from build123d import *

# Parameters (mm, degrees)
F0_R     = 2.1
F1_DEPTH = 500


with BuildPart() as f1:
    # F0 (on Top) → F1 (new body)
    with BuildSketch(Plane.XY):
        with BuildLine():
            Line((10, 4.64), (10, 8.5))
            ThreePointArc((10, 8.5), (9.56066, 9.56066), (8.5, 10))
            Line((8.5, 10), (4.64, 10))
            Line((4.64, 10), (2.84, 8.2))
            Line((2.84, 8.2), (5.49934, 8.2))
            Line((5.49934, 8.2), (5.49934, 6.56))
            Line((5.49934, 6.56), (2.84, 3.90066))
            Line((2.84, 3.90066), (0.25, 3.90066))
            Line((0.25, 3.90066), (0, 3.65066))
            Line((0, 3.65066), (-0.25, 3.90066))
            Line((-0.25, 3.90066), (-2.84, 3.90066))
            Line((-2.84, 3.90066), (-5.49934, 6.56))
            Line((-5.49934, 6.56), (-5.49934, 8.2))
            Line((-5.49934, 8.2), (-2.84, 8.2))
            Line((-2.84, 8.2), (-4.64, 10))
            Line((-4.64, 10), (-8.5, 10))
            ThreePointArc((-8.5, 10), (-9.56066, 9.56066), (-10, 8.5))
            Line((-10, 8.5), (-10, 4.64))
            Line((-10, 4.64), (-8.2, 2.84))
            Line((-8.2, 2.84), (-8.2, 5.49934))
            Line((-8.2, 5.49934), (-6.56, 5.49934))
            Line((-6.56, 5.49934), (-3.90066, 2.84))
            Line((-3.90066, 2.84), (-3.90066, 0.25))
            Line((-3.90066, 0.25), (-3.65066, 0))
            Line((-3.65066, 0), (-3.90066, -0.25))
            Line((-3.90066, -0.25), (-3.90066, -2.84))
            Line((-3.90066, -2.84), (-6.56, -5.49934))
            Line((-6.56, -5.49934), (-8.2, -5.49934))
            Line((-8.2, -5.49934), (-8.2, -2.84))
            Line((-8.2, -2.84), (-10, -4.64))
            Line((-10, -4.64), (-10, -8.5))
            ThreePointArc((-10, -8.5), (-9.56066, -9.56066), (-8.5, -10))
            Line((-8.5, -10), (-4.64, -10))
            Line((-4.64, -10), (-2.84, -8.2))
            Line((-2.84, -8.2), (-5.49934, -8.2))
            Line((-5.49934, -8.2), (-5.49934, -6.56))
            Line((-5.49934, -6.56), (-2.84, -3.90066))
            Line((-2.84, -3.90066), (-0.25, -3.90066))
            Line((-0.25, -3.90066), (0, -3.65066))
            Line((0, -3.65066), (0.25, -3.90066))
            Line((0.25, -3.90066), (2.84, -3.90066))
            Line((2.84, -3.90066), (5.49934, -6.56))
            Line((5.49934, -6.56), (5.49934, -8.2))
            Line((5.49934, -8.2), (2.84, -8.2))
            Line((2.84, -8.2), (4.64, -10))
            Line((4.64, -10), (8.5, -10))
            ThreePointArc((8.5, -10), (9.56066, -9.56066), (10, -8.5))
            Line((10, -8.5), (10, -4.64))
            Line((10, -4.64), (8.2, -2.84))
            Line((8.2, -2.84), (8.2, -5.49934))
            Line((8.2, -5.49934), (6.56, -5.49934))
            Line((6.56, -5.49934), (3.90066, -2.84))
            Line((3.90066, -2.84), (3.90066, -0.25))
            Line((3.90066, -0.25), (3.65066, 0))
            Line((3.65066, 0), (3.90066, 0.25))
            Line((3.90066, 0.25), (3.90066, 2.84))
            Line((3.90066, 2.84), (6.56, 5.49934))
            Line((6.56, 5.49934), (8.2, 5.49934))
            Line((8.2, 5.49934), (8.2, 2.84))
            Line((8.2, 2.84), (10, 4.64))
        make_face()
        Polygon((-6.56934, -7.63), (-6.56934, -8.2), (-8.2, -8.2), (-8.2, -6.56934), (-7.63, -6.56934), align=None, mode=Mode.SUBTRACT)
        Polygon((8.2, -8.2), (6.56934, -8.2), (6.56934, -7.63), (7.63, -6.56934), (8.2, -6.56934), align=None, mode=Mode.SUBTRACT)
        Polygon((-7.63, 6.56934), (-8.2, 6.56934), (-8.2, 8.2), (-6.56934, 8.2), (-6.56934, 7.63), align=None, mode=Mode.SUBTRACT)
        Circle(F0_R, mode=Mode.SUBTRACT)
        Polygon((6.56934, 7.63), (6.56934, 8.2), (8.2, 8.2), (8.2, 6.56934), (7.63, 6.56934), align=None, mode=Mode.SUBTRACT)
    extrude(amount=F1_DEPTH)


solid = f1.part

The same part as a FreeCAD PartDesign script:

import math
import FreeCAD as App
import Part
import Sketcher
from FreeCAD import Vector

doc = App.newDocument("Part")
body = doc.addObject("PartDesign::Body", "Body")

# Sketch on XY plane
sketch1 = body.newObject("Sketcher::SketchObject", "Sketch")
sketch1.AttachmentSupport = (doc.getObject("XY_Plane"), [""])
sketch1.MapMode = "FlatFace"
sketch1.addGeometry(Part.LineSegment(Vector(10, 4.64, 0), Vector(10, 8.5, 0)), False)
sketch1.addGeometry(Part.ArcOfCircle(Part.Circle(Vector(8.5, 8.5, 0), Vector(0, 0, 1), 1.5), math.radians(0), math.radians(90)), False)
sketch1.addGeometry(Part.LineSegment(Vector(8.5, 10, 0), Vector(4.64, 10, 0)), False)
sketch1.addGeometry(Part.LineSegment(Vector(4.64, 10, 0), Vector(2.84, 8.2, 0)), False)
sketch1.addGeometry(Part.LineSegment(Vector(2.84, 8.2, 0), Vector(5.5, 8.2, 0)), False)
sketch1.addGeometry(Part.LineSegment(Vector(5.5, 8.2, 0), Vector(5.5, 6.56, 0)), False)
sketch1.addGeometry(Part.LineSegment(Vector(5.5, 6.56, 0), Vector(2.84, 3.9, 0)), False)
sketch1.addGeometry(Part.LineSegment(Vector(2.84, 3.9, 0), Vector(0.25, 3.9, 0)), False)
sketch1.addGeometry(Part.LineSegment(Vector(0.25, 3.9, 0), Vector(0, 3.65, 0)), False)
sketch1.addGeometry(Part.LineSegment(Vector(0, 3.65, 0), Vector(-0.25, 3.9, 0)), False)
sketch1.addGeometry(Part.LineSegment(Vector(-0.25, 3.9, 0), Vector(-2.84, 3.9, 0)), False)
sketch1.addGeometry(Part.LineSegment(Vector(-2.84, 3.9, 0), Vector(-5.5, 6.56, 0)), False)
sketch1.addGeometry(Part.LineSegment(Vector(-5.5, 6.56, 0), Vector(-5.5, 8.2, 0)), False)
sketch1.addGeometry(Part.LineSegment(Vector(-5.5, 8.2, 0), Vector(-2.84, 8.2, 0)), False)
sketch1.addGeometry(Part.LineSegment(Vector(-2.84, 8.2, 0), Vector(-4.64, 10, 0)), False)
sketch1.addGeometry(Part.LineSegment(Vector(-4.64, 10, 0), Vector(-8.5, 10, 0)), False)
sketch1.addGeometry(Part.ArcOfCircle(Part.Circle(Vector(-8.5, 8.5, 0), Vector(0, 0, 1), 1.5), math.radians(90), math.radians(180)), False)
sketch1.addGeometry(Part.LineSegment(Vector(-10, 8.5, 0), Vector(-10, 4.64, 0)), False)
sketch1.addGeometry(Part.LineSegment(Vector(-10, 4.64, 0), Vector(-8.2, 2.84, 0)), False)
sketch1.addGeometry(Part.LineSegment(Vector(-8.2, 2.84, 0), Vector(-8.2, 5.5, 0)), False)
sketch1.addGeometry(Part.LineSegment(Vector(-8.2, 5.5, 0), Vector(-6.56, 5.5, 0)), False)
sketch1.addGeometry(Part.LineSegment(Vector(-6.56, 5.5, 0), Vector(-3.9, 2.84, 0)), False)
sketch1.addGeometry(Part.LineSegment(Vector(-3.9, 2.84, 0), Vector(-3.9, 0.25, 0)), False)
sketch1.addGeometry(Part.LineSegment(Vector(-3.9, 0.25, 0), Vector(-3.65, 0, 0)), False)
sketch1.addGeometry(Part.LineSegment(Vector(-3.65, 0, 0), Vector(-3.9, -0.25, 0)), False)
sketch1.addGeometry(Part.LineSegment(Vector(-3.9, -0.25, 0), Vector(-3.9, -2.84, 0)), False)
sketch1.addGeometry(Part.LineSegment(Vector(-3.9, -2.84, 0), Vector(-6.56, -5.5, 0)), False)
sketch1.addGeometry(Part.LineSegment(Vector(-6.56, -5.5, 0), Vector(-8.2, -5.5, 0)), False)
sketch1.addGeometry(Part.LineSegment(Vector(-8.2, -5.5, 0), Vector(-8.2, -2.84, 0)), False)
sketch1.addGeometry(Part.LineSegment(Vector(-8.2, -2.84, 0), Vector(-10, -4.64, 0)), False)
sketch1.addGeometry(Part.LineSegment(Vector(-10, -4.64, 0), Vector(-10, -8.5, 0)), False)
sketch1.addGeometry(Part.ArcOfCircle(Part.Circle(Vector(-8.5, -8.5, 0), Vector(0, 0, 1), 1.5), math.radians(-180), math.radians(-90)), False)
sketch1.addGeometry(Part.LineSegment(Vector(-8.5, -10, 0), Vector(-4.64, -10, 0)), False)
sketch1.addGeometry(Part.LineSegment(Vector(-4.64, -10, 0), Vector(-2.84, -8.2, 0)), False)
sketch1.addGeometry(Part.LineSegment(Vector(-2.84, -8.2, 0), Vector(-5.5, -8.2, 0)), False)
sketch1.addGeometry(Part.LineSegment(Vector(-5.5, -8.2, 0), Vector(-5.5, -6.56, 0)), False)
sketch1.addGeometry(Part.LineSegment(Vector(-5.5, -6.56, 0), Vector(-2.84, -3.9, 0)), False)
sketch1.addGeometry(Part.LineSegment(Vector(-2.84, -3.9, 0), Vector(-0.25, -3.9, 0)), False)
sketch1.addGeometry(Part.LineSegment(Vector(-0.25, -3.9, 0), Vector(0, -3.65, 0)), False)
sketch1.addGeometry(Part.LineSegment(Vector(0, -3.65, 0), Vector(0.25, -3.9, 0)), False)
sketch1.addGeometry(Part.LineSegment(Vector(0.25, -3.9, 0), Vector(2.84, -3.9, 0)), False)
sketch1.addGeometry(Part.LineSegment(Vector(2.84, -3.9, 0), Vector(5.5, -6.56, 0)), False)
sketch1.addGeometry(Part.LineSegment(Vector(5.5, -6.56, 0), Vector(5.5, -8.2, 0)), False)
sketch1.addGeometry(Part.LineSegment(Vector(5.5, -8.2, 0), Vector(2.84, -8.2, 0)), False)
sketch1.addGeometry(Part.LineSegment(Vector(2.84, -8.2, 0), Vector(4.64, -10, 0)), False)
sketch1.addGeometry(Part.LineSegment(Vector(4.64, -10, 0), Vector(8.5, -10, 0)), False)
sketch1.addGeometry(Part.ArcOfCircle(Part.Circle(Vector(8.5, -8.5, 0), Vector(0, 0, 1), 1.5), math.radians(-90), math.radians(0)), False)
sketch1.addGeometry(Part.LineSegment(Vector(10, -8.5, 0), Vector(10, -4.64, 0)), False)
sketch1.addGeometry(Part.LineSegment(Vector(10, -4.64, 0), Vector(8.2, -2.84, 0)), False)
sketch1.addGeometry(Part.LineSegment(Vector(8.2, -2.84, 0), Vector(8.2, -5.5, 0)), False)
sketch1.addGeometry(Part.LineSegment(Vector(8.2, -5.5, 0), Vector(6.56, -5.5, 0)), False)
sketch1.addGeometry(Part.LineSegment(Vector(6.56, -5.5, 0), Vector(3.9, -2.84, 0)), False)
sketch1.addGeometry(Part.LineSegment(Vector(3.9, -2.84, 0), Vector(3.9, -0.25, 0)), False)
sketch1.addGeometry(Part.LineSegment(Vector(3.9, -0.25, 0), Vector(3.65, 0, 0)), False)
sketch1.addGeometry(Part.LineSegment(Vector(3.65, 0, 0), Vector(3.9, 0.25, 0)), False)
sketch1.addGeometry(Part.LineSegment(Vector(3.9, 0.25, 0), Vector(3.9, 2.84, 0)), False)
sketch1.addGeometry(Part.LineSegment(Vector(3.9, 2.84, 0), Vector(6.56, 5.5, 0)), False)
sketch1.addGeometry(Part.LineSegment(Vector(6.56, 5.5, 0), Vector(8.2, 5.5, 0)), False)
sketch1.addGeometry(Part.LineSegment(Vector(8.2, 5.5, 0), Vector(8.2, 2.84, 0)), False)
sketch1.addGeometry(Part.LineSegment(Vector(8.2, 2.84, 0), Vector(10, 4.64, 0)), False)
sketch1.addGeometry(Part.LineSegment(Vector(-7.63, -6.57, 0), Vector(-6.57, -7.63, 0)), False)
sketch1.addGeometry(Part.LineSegment(Vector(-6.57, -7.63, 0), Vector(-6.57, -8.2, 0)), False)
sketch1.addGeometry(Part.LineSegment(Vector(-6.57, -8.2, 0), Vector(-8.2, -8.2, 0)), False)
sketch1.addGeometry(Part.LineSegment(Vector(-8.2, -8.2, 0), Vector(-8.2, -6.57, 0)), False)
sketch1.addGeometry(Part.LineSegment(Vector(-8.2, -6.57, 0), Vector(-7.63, -6.57, 0)), False)
sketch1.addGeometry(Part.LineSegment(Vector(8.2, -6.57, 0), Vector(8.2, -8.2, 0)), False)
sketch1.addGeometry(Part.LineSegment(Vector(8.2, -8.2, 0), Vector(6.57, -8.2, 0)), False)
sketch1.addGeometry(Part.LineSegment(Vector(6.57, -8.2, 0), Vector(6.57, -7.63, 0)), False)
sketch1.addGeometry(Part.LineSegment(Vector(6.57, -7.63, 0), Vector(7.63, -6.57, 0)), False)
sketch1.addGeometry(Part.LineSegment(Vector(7.63, -6.57, 0), Vector(8.2, -6.57, 0)), False)
sketch1.addGeometry(Part.LineSegment(Vector(-6.57, 7.63, 0), Vector(-7.63, 6.57, 0)), False)
sketch1.addGeometry(Part.LineSegment(Vector(-7.63, 6.57, 0), Vector(-8.2, 6.57, 0)), False)
sketch1.addGeometry(Part.LineSegment(Vector(-8.2, 6.57, 0), Vector(-8.2, 8.2, 0)), False)
sketch1.addGeometry(Part.LineSegment(Vector(-8.2, 8.2, 0), Vector(-6.57, 8.2, 0)), False)
sketch1.addGeometry(Part.LineSegment(Vector(-6.57, 8.2, 0), Vector(-6.57, 7.63, 0)), False)
sketch1.addGeometry(Part.Circle(Vector(0, 0, 0), Vector(0, 0, 1), 2.1), False)
sketch1.addGeometry(Part.LineSegment(Vector(7.63, 6.57, 0), Vector(6.57, 7.63, 0)), False)
sketch1.addGeometry(Part.LineSegment(Vector(6.57, 7.63, 0), Vector(6.57, 8.2, 0)), False)
sketch1.addGeometry(Part.LineSegment(Vector(6.57, 8.2, 0), Vector(8.2, 8.2, 0)), False)
sketch1.addGeometry(Part.LineSegment(Vector(8.2, 8.2, 0), Vector(8.2, 6.57, 0)), False)
sketch1.addGeometry(Part.LineSegment(Vector(8.2, 6.57, 0), Vector(7.63, 6.57, 0)), False)
sketch1.addConstraint(Sketcher.Constraint("Tangent", 0, 2, 1, 1))
sketch1.addConstraint(Sketcher.Constraint("Tangent", 1, 2, 2, 1))
sketch1.addConstraint(Sketcher.Constraint("Coincident", 2, 2, 3, 1))
sketch1.addConstraint(Sketcher.Constraint("Coincident", 3, 2, 4, 1))
sketch1.addConstraint(Sketcher.Constraint("Coincident", 4, 2, 5, 1))
sketch1.addConstraint(Sketcher.Constraint("Coincident", 5, 2, 6, 1))
sketch1.addConstraint(Sketcher.Constraint("Coincident", 6, 2, 7, 1))
sketch1.addConstraint(Sketcher.Constraint("Coincident", 7, 2, 8, 1))
sketch1.addConstraint(Sketcher.Constraint("Coincident", 8, 2, 9, 1))
sketch1.addConstraint(Sketcher.Constraint("Coincident", 9, 2, 10, 1))
sketch1.addConstraint(Sketcher.Constraint("Coincident", 10, 2, 11, 1))
sketch1.addConstraint(Sketcher.Constraint("Coincident", 11, 2, 12, 1))
sketch1.addConstraint(Sketcher.Constraint("Coincident", 12, 2, 13, 1))
sketch1.addConstraint(Sketcher.Constraint("Coincident", 13, 2, 14, 1))
sketch1.addConstraint(Sketcher.Constraint("Coincident", 14, 2, 15, 1))
sketch1.addConstraint(Sketcher.Constraint("Tangent", 15, 2, 16, 1))
sketch1.addConstraint(Sketcher.Constraint("Tangent", 16, 2, 17, 1))
sketch1.addConstraint(Sketcher.Constraint("Coincident", 17, 2, 18, 1))
sketch1.addConstraint(Sketcher.Constraint("Coincident", 18, 2, 19, 1))
sketch1.addConstraint(Sketcher.Constraint("Coincident", 19, 2, 20, 1))
sketch1.addConstraint(Sketcher.Constraint("Coincident", 20, 2, 21, 1))
sketch1.addConstraint(Sketcher.Constraint("Coincident", 21, 2, 22, 1))
sketch1.addConstraint(Sketcher.Constraint("Coincident", 22, 2, 23, 1))
sketch1.addConstraint(Sketcher.Constraint("Coincident", 23, 2, 24, 1))
sketch1.addConstraint(Sketcher.Constraint("Coincident", 24, 2, 25, 1))
sketch1.addConstraint(Sketcher.Constraint("Coincident", 25, 2, 26, 1))
sketch1.addConstraint(Sketcher.Constraint("Coincident", 26, 2, 27, 1))
sketch1.addConstraint(Sketcher.Constraint("Coincident", 27, 2, 28, 1))
sketch1.addConstraint(Sketcher.Constraint("Coincident", 28, 2, 29, 1))
sketch1.addConstraint(Sketcher.Constraint("Coincident", 29, 2, 30, 1))
sketch1.addConstraint(Sketcher.Constraint("Tangent", 30, 2, 31, 1))
sketch1.addConstraint(Sketcher.Constraint("Tangent", 31, 2, 32, 1))
sketch1.addConstraint(Sketcher.Constraint("Coincident", 32, 2, 33, 1))
sketch1.addConstraint(Sketcher.Constraint("Coincident", 33, 2, 34, 1))
sketch1.addConstraint(Sketcher.Constraint("Coincident", 34, 2, 35, 1))
sketch1.addConstraint(Sketcher.Constraint("Coincident", 35, 2, 36, 1))
sketch1.addConstraint(Sketcher.Constraint("Coincident", 36, 2, 37, 1))
sketch1.addConstraint(Sketcher.Constraint("Coincident", 37, 2, 38, 1))
sketch1.addConstraint(Sketcher.Constraint("Coincident", 38, 2, 39, 1))
sketch1.addConstraint(Sketcher.Constraint("Coincident", 39, 2, 40, 1))
sketch1.addConstraint(Sketcher.Constraint("Coincident", 40, 2, 41, 1))
sketch1.addConstraint(Sketcher.Constraint("Coincident", 41, 2, 42, 1))
sketch1.addConstraint(Sketcher.Constraint("Coincident", 42, 2, 43, 1))
sketch1.addConstraint(Sketcher.Constraint("Coincident", 43, 2, 44, 1))
sketch1.addConstraint(Sketcher.Constraint("Coincident", 44, 2, 45, 1))
sketch1.addConstraint(Sketcher.Constraint("Tangent", 45, 2, 46, 1))
sketch1.addConstraint(Sketcher.Constraint("Tangent", 46, 2, 47, 1))
sketch1.addConstraint(Sketcher.Constraint("Coincident", 47, 2, 48, 1))
sketch1.addConstraint(Sketcher.Constraint("Coincident", 48, 2, 49, 1))
sketch1.addConstraint(Sketcher.Constraint("Coincident", 49, 2, 50, 1))
sketch1.addConstraint(Sketcher.Constraint("Coincident", 50, 2, 51, 1))
sketch1.addConstraint(Sketcher.Constraint("Coincident", 51, 2, 52, 1))
sketch1.addConstraint(Sketcher.Constraint("Coincident", 52, 2, 53, 1))
sketch1.addConstraint(Sketcher.Constraint("Coincident", 53, 2, 54, 1))
sketch1.addConstraint(Sketcher.Constraint("Coincident", 54, 2, 55, 1))
sketch1.addConstraint(Sketcher.Constraint("Coincident", 55, 2, 56, 1))
sketch1.addConstraint(Sketcher.Constraint("Coincident", 56, 2, 57, 1))
sketch1.addConstraint(Sketcher.Constraint("Coincident", 57, 2, 58, 1))
sketch1.addConstraint(Sketcher.Constraint("Coincident", 58, 2, 59, 1))
sketch1.addConstraint(Sketcher.Constraint("Coincident", 59, 2, 0, 1))
sketch1.addConstraint(Sketcher.Constraint("Coincident", 60, 2, 61, 1))
sketch1.addConstraint(Sketcher.Constraint("Coincident", 61, 2, 62, 1))
sketch1.addConstraint(Sketcher.Constraint("Coincident", 62, 2, 63, 1))
sketch1.addConstraint(Sketcher.Constraint("Coincident", 63, 2, 64, 1))
sketch1.addConstraint(Sketcher.Constraint("Coincident", 64, 2, 60, 1))
sketch1.addConstraint(Sketcher.Constraint("Coincident", 65, 2, 66, 1))
sketch1.addConstraint(Sketcher.Constraint("Coincident", 66, 2, 67, 1))
sketch1.addConstraint(Sketcher.Constraint("Coincident", 67, 2, 68, 1))
sketch1.addConstraint(Sketcher.Constraint("Coincident", 68, 2, 69, 1))
sketch1.addConstraint(Sketcher.Constraint("Coincident", 69, 2, 65, 1))
sketch1.addConstraint(Sketcher.Constraint("Coincident", 70, 2, 71, 1))
sketch1.addConstraint(Sketcher.Constraint("Coincident", 71, 2, 72, 1))
sketch1.addConstraint(Sketcher.Constraint("Coincident", 72, 2, 73, 1))
sketch1.addConstraint(Sketcher.Constraint("Coincident", 73, 2, 74, 1))
sketch1.addConstraint(Sketcher.Constraint("Coincident", 74, 2, 70, 1))
sketch1.addConstraint(Sketcher.Constraint("Coincident", 76, 2, 77, 1))
sketch1.addConstraint(Sketcher.Constraint("Coincident", 77, 2, 78, 1))
sketch1.addConstraint(Sketcher.Constraint("Coincident", 78, 2, 79, 1))
sketch1.addConstraint(Sketcher.Constraint("Coincident", 79, 2, 80, 1))
sketch1.addConstraint(Sketcher.Constraint("Coincident", 80, 2, 76, 1))
sketch1.addConstraint(Sketcher.Constraint("Vertical", 0))
sketch1.addConstraint(Sketcher.Constraint("Horizontal", 2))
sketch1.addConstraint(Sketcher.Constraint("Horizontal", 4))
sketch1.addConstraint(Sketcher.Constraint("Vertical", 5))
sketch1.addConstraint(Sketcher.Constraint("Horizontal", 7))
sketch1.addConstraint(Sketcher.Constraint("Horizontal", 10))
sketch1.addConstraint(Sketcher.Constraint("Vertical", 12))
sketch1.addConstraint(Sketcher.Constraint("Horizontal", 13))
sketch1.addConstraint(Sketcher.Constraint("Horizontal", 15))
sketch1.addConstraint(Sketcher.Constraint("Vertical", 17))
sketch1.addConstraint(Sketcher.Constraint("Vertical", 19))
sketch1.addConstraint(Sketcher.Constraint("Horizontal", 20))
sketch1.addConstraint(Sketcher.Constraint("Vertical", 22))
sketch1.addConstraint(Sketcher.Constraint("Vertical", 25))
sketch1.addConstraint(Sketcher.Constraint("Horizontal", 27))
sketch1.addConstraint(Sketcher.Constraint("Vertical", 28))
sketch1.addConstraint(Sketcher.Constraint("Vertical", 30))
sketch1.addConstraint(Sketcher.Constraint("Horizontal", 32))
sketch1.addConstraint(Sketcher.Constraint("Horizontal", 34))
sketch1.addConstraint(Sketcher.Constraint("Vertical", 35))
sketch1.addConstraint(Sketcher.Constraint("Horizontal", 37))
sketch1.addConstraint(Sketcher.Constraint("Horizontal", 40))
sketch1.addConstraint(Sketcher.Constraint("Vertical", 42))
sketch1.addConstraint(Sketcher.Constraint("Horizontal", 43))
sketch1.addConstraint(Sketcher.Constraint("Horizontal", 45))
sketch1.addConstraint(Sketcher.Constraint("Vertical", 47))
sketch1.addConstraint(Sketcher.Constraint("Vertical", 49))
sketch1.addConstraint(Sketcher.Constraint("Horizontal", 50))
sketch1.addConstraint(Sketcher.Constraint("Vertical", 52))
sketch1.addConstraint(Sketcher.Constraint("Vertical", 55))
sketch1.addConstraint(Sketcher.Constraint("Horizontal", 57))
sketch1.addConstraint(Sketcher.Constraint("Vertical", 58))
sketch1.addConstraint(Sketcher.Constraint("Vertical", 61))
sketch1.addConstraint(Sketcher.Constraint("Horizontal", 62))
sketch1.addConstraint(Sketcher.Constraint("Vertical", 63))
sketch1.addConstraint(Sketcher.Constraint("Horizontal", 64))
sketch1.addConstraint(Sketcher.Constraint("Vertical", 65))
sketch1.addConstraint(Sketcher.Constraint("Horizontal", 66))
sketch1.addConstraint(Sketcher.Constraint("Vertical", 67))
sketch1.addConstraint(Sketcher.Constraint("Horizontal", 69))
sketch1.addConstraint(Sketcher.Constraint("Horizontal", 71))
sketch1.addConstraint(Sketcher.Constraint("Vertical", 72))
sketch1.addConstraint(Sketcher.Constraint("Horizontal", 73))
sketch1.addConstraint(Sketcher.Constraint("Vertical", 74))
sketch1.addConstraint(Sketcher.Constraint("Vertical", 77))
sketch1.addConstraint(Sketcher.Constraint("Horizontal", 78))
sketch1.addConstraint(Sketcher.Constraint("Vertical", 79))
sketch1.addConstraint(Sketcher.Constraint("Horizontal", 80))
sketch1.addConstraint(Sketcher.Constraint("Coincident", 75, 3, -1, 1))
sketch1.addConstraint(Sketcher.Constraint("Equal", 1, 16))
sketch1.addConstraint(Sketcher.Constraint("Equal", 16, 31))
sketch1.addConstraint(Sketcher.Constraint("Equal", 31, 46))
sketch1.addConstraint(Sketcher.Constraint("Symmetric", 1, 3, 31, 3, -1, 1))
sketch1.addConstraint(Sketcher.Constraint("Symmetric", 16, 3, 46, 3, -1, 1))
sketch1.addConstraint(Sketcher.Constraint("Symmetric", 3, 2, 33, 2, -1, 1))
sketch1.addConstraint(Sketcher.Constraint("Symmetric", 5, 2, 35, 2, -1, 1))
sketch1.addConstraint(Sketcher.Constraint("Symmetric", 6, 2, 36, 2, -1, 1))
sketch1.addConstraint(Sketcher.Constraint("Symmetric", 8, 2, 38, 2, -1, 1))
sketch1.addConstraint(Sketcher.Constraint("Symmetric", 9, 2, 39, 2, -1, 1))
sketch1.addConstraint(Sketcher.Constraint("Symmetric", 11, 2, 41, 2, -1, 1))
sketch1.addConstraint(Sketcher.Constraint("Symmetric", 13, 2, 43, 2, -1, 1))
sketch1.addConstraint(Sketcher.Constraint("Symmetric", 18, 2, 48, 2, -1, 1))
sketch1.addConstraint(Sketcher.Constraint("Symmetric", 20, 2, 50, 2, -1, 1))
sketch1.addConstraint(Sketcher.Constraint("Symmetric", 21, 2, 51, 2, -1, 1))
sketch1.addConstraint(Sketcher.Constraint("Symmetric", 23, 2, 53, 2, -1, 1))
sketch1.addConstraint(Sketcher.Constraint("Symmetric", 24, 2, 54, 2, -1, 1))
sketch1.addConstraint(Sketcher.Constraint("Symmetric", 26, 2, 56, 2, -1, 1))
sketch1.addConstraint(Sketcher.Constraint("Symmetric", 28, 2, 58, 2, -1, 1))
sketch1.addConstraint(Sketcher.Constraint("Symmetric", 68, 2, 70, 2, -1, 1))
sketch1.addConstraint(Sketcher.Constraint("Symmetric", 65, 2, 72, 2, -1, 1))
sketch1.addConstraint(Sketcher.Constraint("Symmetric", 67, 2, 74, 2, -1, 1))
sketch1.addConstraint(Sketcher.Constraint("Symmetric", 60, 2, 76, 2, -1, 1))
sketch1.addConstraint(Sketcher.Constraint("Symmetric", 62, 2, 78, 2, -1, 1))
sketch1.addConstraint(Sketcher.Constraint("Symmetric", 64, 2, 80, 2, -1, 1))
sketch1.addConstraint(Sketcher.Constraint("Symmetric", 1, 3, 16, 3, -2))
sketch1.addConstraint(Sketcher.Constraint("Symmetric", 7, 2, 9, 2, -2))
sketch1.addConstraint(Sketcher.Constraint("Symmetric", 5, 2, 11, 2, -2))
sketch1.addConstraint(Sketcher.Constraint("Symmetric", 3, 2, 13, 2, -2))
sketch1.addConstraint(Sketcher.Constraint("Symmetric", 28, 2, 48, 2, -2))
sketch1.addConstraint(Sketcher.Constraint("Symmetric", 26, 2, 50, 2, -2))
sketch1.addConstraint(Sketcher.Constraint("Symmetric", 25, 2, 51, 2, -2))
sketch1.addConstraint(Sketcher.Constraint("Symmetric", 62, 2, 65, 2, -2))
sketch1.addConstraint(Sketcher.Constraint("Symmetric", 60, 2, 67, 2, -2))
sketch1.addConstraint(Sketcher.Constraint("Symmetric", 64, 2, 68, 2, -2))
sketch1.addConstraint(Sketcher.Constraint("PointOnObject", 8, 2, -2))
sketch1.addConstraint(Sketcher.Constraint("PointOnObject", 23, 2, -1))
sketch1.addConstraint(Sketcher.Constraint("Parallel", 3, 6))
sketch1.addConstraint(Sketcher.Constraint("Parallel", 6, 8))
sketch1.addConstraint(Sketcher.Constraint("Perpendicular", 8, 9))
sketch1.addConstraint(Sketcher.Constraint("Parallel", 9, 11))
sketch1.addConstraint(Sketcher.Constraint("Parallel", 11, 14))
sketch1.addConstraint(Sketcher.Constraint("Parallel", 14, 18))
sketch1.addConstraint(Sketcher.Constraint("Parallel", 18, 21))
sketch1.addConstraint(Sketcher.Constraint("Parallel", 21, 23))
sketch1.addConstraint(Sketcher.Constraint("Perpendicular", 23, 24))
sketch1.addConstraint(Sketcher.Constraint("Parallel", 26, 29))
sketch1.addConstraint(Sketcher.Constraint("Parallel", 29, 33))
sketch1.addConstraint(Sketcher.Constraint("Parallel", 36, 38))
sketch1.addConstraint(Sketcher.Constraint("Parallel", 39, 41))
sketch1.addConstraint(Sketcher.Constraint("Parallel", 41, 44))
sketch1.addConstraint(Sketcher.Constraint("Parallel", 44, 48))
sketch1.addConstraint(Sketcher.Constraint("Parallel", 51, 53))
sketch1.addConstraint(Sketcher.Constraint("Parallel", 54, 56))
sketch1.addConstraint(Sketcher.Constraint("Parallel", 56, 59))
sketch1.addConstraint(Sketcher.Constraint("Perpendicular", 59, 60))
sketch1.addConstraint(Sketcher.Constraint("Horizontal", 18, 2, 21, 2))
sketch1.addConstraint(Sketcher.Constraint("Horizontal", 43, 2, 61, 2))
sketch1.addConstraint(Sketcher.Constraint("Vertical", 3, 2, 6, 2))
sketch1.addConstraint(Sketcher.Constraint("Vertical", 28, 2, 62, 2))
sketch1.addConstraint(Sketcher.Constraint("Equal", 45, 0))
sketch1.addConstraint(Sketcher.Constraint("Equal", 57, 5))
sketch1.addConstraint(Sketcher.Constraint("Equal", 43, 19))
sketch1.addConstraint(Sketcher.Constraint("Equal", 40, 22))
sketch1.addConstraint(Sketcher.Constraint("Equal", 80, 61))
sketch1.addConstraint(Sketcher.Constraint("Equal", 14, 18))
sketch1.addConstraint(Sketcher.Constraint("Equal", 9, 23))
sketch1.addConstraint(Sketcher.Constraint("Diameter", 75, 4.2))
sketch1.addConstraint(Sketcher.Constraint("Radius", 1, 1.500001))
sketch1.addConstraint(Sketcher.Constraint("DistanceX", -1, 1, 0, 2, 10.0))
sketch1.addConstraint(Sketcher.Constraint("Distance", 60, 1.5))
sketch1.addConstraint(Sketcher.Constraint("DistanceX", 2, 2, 2, 1, 3.86))
sketch1.addConstraint(Sketcher.Constraint("DistanceX", 7, 2, 7, 1, 2.59))
sketch1.addConstraint(Sketcher.Constraint("DistanceX", 20, 1, 20, 2, 1.64))
sketch1.addConstraint(Sketcher.Constraint("DistanceX", 64, 1, 64, 2, 0.57))
sketch1.addConstraint(Sketcher.Constraint("DistanceY", -1, 1, 3, 2, 8.2))
sketch1.addConstraint(Sketcher.Constraint("DistanceX", 4, 1, 4, 2, 2.65934))
pad1 = body.newObject("PartDesign::Pad", "Pad")
pad1.Profile = sketch1
pad1.Length = 500

doc.recompute()
